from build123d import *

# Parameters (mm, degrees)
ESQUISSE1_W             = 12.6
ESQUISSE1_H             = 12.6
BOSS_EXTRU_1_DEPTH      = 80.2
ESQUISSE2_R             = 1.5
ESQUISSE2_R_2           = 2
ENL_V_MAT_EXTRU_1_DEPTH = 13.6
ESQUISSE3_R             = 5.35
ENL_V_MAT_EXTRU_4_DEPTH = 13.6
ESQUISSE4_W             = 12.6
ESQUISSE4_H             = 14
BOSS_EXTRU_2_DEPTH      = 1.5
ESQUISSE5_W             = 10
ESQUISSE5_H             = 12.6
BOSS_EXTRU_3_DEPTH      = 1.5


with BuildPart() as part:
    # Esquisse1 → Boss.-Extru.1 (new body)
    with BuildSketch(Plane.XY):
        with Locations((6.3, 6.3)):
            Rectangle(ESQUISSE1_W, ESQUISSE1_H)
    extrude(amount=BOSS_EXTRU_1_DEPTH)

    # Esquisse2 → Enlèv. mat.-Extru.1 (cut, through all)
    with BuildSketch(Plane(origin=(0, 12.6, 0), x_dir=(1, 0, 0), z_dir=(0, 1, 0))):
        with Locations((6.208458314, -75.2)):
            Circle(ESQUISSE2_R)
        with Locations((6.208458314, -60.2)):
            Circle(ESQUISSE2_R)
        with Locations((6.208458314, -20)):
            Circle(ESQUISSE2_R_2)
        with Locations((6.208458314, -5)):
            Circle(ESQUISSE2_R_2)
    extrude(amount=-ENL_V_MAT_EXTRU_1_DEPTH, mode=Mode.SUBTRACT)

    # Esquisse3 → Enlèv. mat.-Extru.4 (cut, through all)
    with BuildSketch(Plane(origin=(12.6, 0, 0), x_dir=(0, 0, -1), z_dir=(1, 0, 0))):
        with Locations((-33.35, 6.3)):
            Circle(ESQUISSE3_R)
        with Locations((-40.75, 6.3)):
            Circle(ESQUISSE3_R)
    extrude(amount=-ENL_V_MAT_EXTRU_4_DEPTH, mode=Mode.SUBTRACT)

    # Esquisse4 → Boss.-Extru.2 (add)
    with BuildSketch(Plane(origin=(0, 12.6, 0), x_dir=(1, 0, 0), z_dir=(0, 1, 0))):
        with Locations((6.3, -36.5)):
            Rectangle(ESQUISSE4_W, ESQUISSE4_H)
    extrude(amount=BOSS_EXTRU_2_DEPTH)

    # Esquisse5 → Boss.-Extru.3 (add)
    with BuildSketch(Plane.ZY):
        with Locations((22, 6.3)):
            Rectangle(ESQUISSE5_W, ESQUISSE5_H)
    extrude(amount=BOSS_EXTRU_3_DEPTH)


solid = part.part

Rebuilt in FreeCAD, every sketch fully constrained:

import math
import FreeCAD as App
import Part
import Sketcher

V = App.Vector
Q = App.Units.Quantity


def add_polygon(sketch, points):
    """Adds a closed chain of lines whose ends are joined by coincident constraints."""
    first, n = sketch.GeometryCount, len(points)
    for a, b in zip(points, points[1:] + points[:1]):
        sketch.addGeometry(Part.LineSegment(App.Vector(*a, 0), App.Vector(*b, 0)), False)
    for i in range(n):
        sketch.addConstraint(Sketcher.Constraint("Coincident", first + i, 2, first + (i + 1) % n, 1))

doc = App.newDocument("Part")
body = doc.addObject("PartDesign::Body", "Body")

sketch1 = doc.addObject("Sketcher::SketchObject", "Sketch")
body.addObject(sketch1)
sketch1.AttachmentSupport = (doc.XY_Plane, [""])
sketch1.MapMode = "FlatFace"
add_polygon(sketch1, [(0, 13), (0, 0), (13, 0), (13, 13)])
sketch1.addConstraint([
    Sketcher.Constraint("Vertical", 0),
    Sketcher.Constraint("Horizontal", 1),
    Sketcher.Constraint("Vertical", 2),
    Sketcher.Constraint("Horizontal", 3),
    Sketcher.Constraint("Coincident", 0, 2, -1, 1),
    Sketcher.Constraint("Equal", 3, 0),
    Sketcher.Constraint("DistanceX", 1, 1, 1, 2, Q("12.6 mm")),
])
pad1 = doc.addObject("PartDesign::Pad", "Pad")
body.addObject(pad1)
pad1.Profile = sketch1
pad1.Length = 80.2

sketch2 = doc.addObject("Sketcher::SketchObject", "Sketch001")
body.addObject(sketch2)
sketch2.AttachmentSupport = (doc.XZ_Plane, [""])
sketch2.MapMode = "FlatFace"
sketch2.AttachmentOffset = App.Placement(V(0, 0, -12.6), App.Rotation())
sketch2.addGeometry([
    Part.Circle(V(6.2, 75.2, 0), V(0, 0, 1), 1.5),
    Part.Circle(V(6.2, 60.2, 0), V(0, 0, 1), 1.5),
    Part.Circle(V(6.2, 20, 0), V(0, 0, 1), 2),
    Part.Circle(V(6.2, 5, 0), V(0, 0, 1), 2),
], False)
sketch2.addConstraint([
    Sketcher.Constraint("Equal", 0, 1),
    Sketcher.Constraint("Equal", 2, 3),
    Sketcher.Constraint("Vertical", 0, 3, 1, 3),
    Sketcher.Constraint("Vertical", 1, 3, 2, 3),
    Sketcher.Constraint("Vertical", 2, 3, 3, 3),
    Sketcher.Constraint("Diameter", 0, Q("3 mm")),
    Sketcher.Constraint("Diameter", 2, Q("4 mm")),
    Sketcher.Constraint("DistanceY", -1, 1, 2, 3, Q("20 mm")),
    Sketcher.Constraint("DistanceY", -1, 1, 3, 3, Q("5 mm")),
    Sketcher.Constraint("DistanceY", 1, 3, 0, 3, Q("15 mm")),
    Sketcher.Constraint("DistanceY", -1, 1, 0, 3, Q("75.2 mm")),
    Sketcher.Constraint("DistanceX", -1, 1, 0, 3, Q("6.208458 mm")),
])
pocket1 = doc.addObject("PartDesign::Pocket", "Pocket")
body.addObject(pocket1)
pocket1.Profile = sketch2
pocket1.Type = "ThroughAll"
pocket1.Reversed = True

sketch3 = doc.addObject("Sketcher::SketchObject", "Sketch002")
body.addObject(sketch3)
sketch3.AttachmentSupport = (doc.YZ_Plane, [""])
sketch3.MapMode = "FlatFace"
sketch3.AttachmentOffset = App.Placement(V(0, 0, 12.6), App.Rotation())
sketch3.addGeometry([
    Part.ArcOfCircle(Part.Circle(V(6, 41, 0), V(0, 0, 1), 5), math.radians(-44), math.radians(224)),
    Part.ArcOfCircle(Part.Circle(V(6, 33, 0), V(0, 0, 1), 5), math.radians(136), math.radians(404)),
], False)
sketch3.addConstraint([
    Sketcher.Constraint("Coincident", 0, 1, 1, 2),
    Sketcher.Constraint("Coincident", 1, 1, 0, 2),
    Sketcher.Constraint("Equal", 0, 1),
    Sketcher.Constraint("Horizontal", 0, 1, 1, 1),
    Sketcher.Constraint("Radius", 0, Q("5.35 mm")),
    Sketcher.Constraint("DistanceX", -1, 1, 0, 3, Q("6.3 mm")),
    Sketcher.Constraint("DistanceY", 1, 3, 0, 3, Q("7.4 mm")),
    Sketcher.Constraint("DistanceY", -1, 1, 0, 3, Q("40.75 mm")),
])
pocket2 = doc.addObject("PartDesign::Pocket", "Pocket001")
body.addObject(pocket2)
pocket2.Profile = sketch3
pocket2.Type = "ThroughAll"

sketch4 = doc.addObject("Sketcher::SketchObject", "Sketch003")
body.addObject(sketch4)
sketch4.AttachmentSupport = (doc.XZ_Plane, [""])
sketch4.MapMode = "FlatFace"
sketch4.AttachmentOffset = App.Placement(V(0, 0, -12.6), App.Rotation())
add_polygon(sketch4, [(0, 30), (0, 44), (13, 44), (13, 30)])
sketch4.addConstraint([
    Sketcher.Constraint("Vertical", 0),
    Sketcher.Constraint("Horizontal", 1),
    Sketcher.Constraint("Vertical", 2),
    Sketcher.Constraint("Horizontal", 3),
    Sketcher.Constraint("PointOnObject", 0, 2, -2),
    Sketcher.Constraint("DistanceY", 0, 1, 0, 2, Q("14 mm")),
    Sketcher.Constraint("DistanceX", 1, 1, 1, 2, Q("12.6 mm")),
    Sketcher.Constraint("DistanceY", -1, 1, 0, 2, Q("43.5 mm")),
])
pad2 = doc.addObject("PartDesign::Pad", "Pad001")
body.addObject(pad2)
pad2.Profile = sketch4
pad2.Length = 1.5
pad2.Reversed = True

sketch5 = doc.addObject("Sketcher::SketchObject", "Sketch004")
body.addObject(sketch5)
sketch5.AttachmentSupport = (doc.YZ_Plane, [""])
sketch5.MapMode = "FlatFace"
add_polygon(sketch5, [(13, 17), (0, 17), (0, 27), (13, 27)])
sketch5.addConstraint([
    Sketcher.Constraint("Horizontal", 0),
    Sketcher.Constraint("Vertical", 1),
    Sketcher.Constraint("Horizontal", 2),
    Sketcher.Constraint("Vertical", 3),
    Sketcher.Constraint("PointOnObject", 0, 2, -2),
    Sketcher.Constraint("DistanceY", 1, 1, 1, 2, Q("10 mm")),
    Sketcher.Constraint("DistanceX", 0, 2, 0, 1, Q("12.6 mm")),
    Sketcher.Constraint("DistanceY", -1, 1, 0, 2, Q("17 mm")),
])
pad3 = doc.addObject("PartDesign::Pad", "Pad002")
body.addObject(pad3)
pad3.Profile = sketch5
pad3.Length = 1.5
pad3.Reversed = True

doc.recompute()
